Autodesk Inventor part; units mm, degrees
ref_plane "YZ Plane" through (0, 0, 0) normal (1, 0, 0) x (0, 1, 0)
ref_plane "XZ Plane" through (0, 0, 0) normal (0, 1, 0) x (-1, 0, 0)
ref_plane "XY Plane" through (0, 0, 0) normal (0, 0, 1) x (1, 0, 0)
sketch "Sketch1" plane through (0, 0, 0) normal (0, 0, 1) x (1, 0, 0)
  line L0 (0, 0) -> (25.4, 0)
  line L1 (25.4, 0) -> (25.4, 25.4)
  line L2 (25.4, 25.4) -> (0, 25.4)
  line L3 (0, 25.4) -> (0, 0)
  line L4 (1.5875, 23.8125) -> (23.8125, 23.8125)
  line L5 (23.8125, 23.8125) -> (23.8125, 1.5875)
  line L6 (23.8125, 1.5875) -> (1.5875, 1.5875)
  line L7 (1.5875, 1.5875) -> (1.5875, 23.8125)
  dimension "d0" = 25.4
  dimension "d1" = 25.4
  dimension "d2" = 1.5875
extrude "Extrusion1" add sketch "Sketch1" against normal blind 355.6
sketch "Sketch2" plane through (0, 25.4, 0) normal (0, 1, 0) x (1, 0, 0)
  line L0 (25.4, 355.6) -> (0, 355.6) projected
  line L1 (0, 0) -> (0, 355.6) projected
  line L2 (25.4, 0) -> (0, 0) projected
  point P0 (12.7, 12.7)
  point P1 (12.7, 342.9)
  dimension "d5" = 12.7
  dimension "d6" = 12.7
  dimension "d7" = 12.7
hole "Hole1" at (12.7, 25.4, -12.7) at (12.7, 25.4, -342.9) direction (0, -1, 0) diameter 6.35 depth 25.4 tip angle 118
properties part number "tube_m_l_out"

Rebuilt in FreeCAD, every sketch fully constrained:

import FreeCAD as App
import Part
import Sketcher
from FreeCAD import Vector
Q = App.Units.Quantity

doc = App.newDocument("Part")
params = doc.addObject("Spreadsheet::Sheet", "Params")
for row, (alias, value) in enumerate([
    ("sketch1_width", "1 in"),
    ("pad1_length", "14 in"),
    ("sketch2_diameter", "0.25 in"),
    ("hole_diameter", "0.25 in"),
    ("hole_depth", "1 in"),
], start=1):
    params.set(f"A{row}", alias)
    params.set(f"B{row}", "=" + value)
    params.setAlias(f"B{row}", alias)

body = doc.addObject("PartDesign::Body", "Body")

sketch1 = doc.addObject("Sketcher::SketchObject", "Sketch")
body.addObject(sketch1)
sketch1.AttachmentSupport = (doc.XY_Plane, [""])
sketch1.MapMode = "FlatFace"
sketch1.addGeometry(Part.LineSegment(Vector(0, 25, 0), Vector(0, 0, 0)), False)
sketch1.addGeometry(Part.LineSegment(Vector(0, 0, 0), Vector(25, 0, 0)), False)
sketch1.addGeometry(Part.LineSegment(Vector(25, 0, 0), Vector(25, 25, 0)), False)
sketch1.addGeometry(Part.LineSegment(Vector(25, 25, 0), Vector(0, 25, 0)), False)
sketch1.addGeometry(Part.LineSegment(Vector(2, 2, 0), Vector(2, 24, 0)), False)
sketch1.addGeometry(Part.LineSegment(Vector(2, 24, 0), Vector(24, 24, 0)), False)
sketch1.addGeometry(Part.LineSegment(Vector(24, 24, 0), Vector(24, 2, 0)), False)
sketch1.addGeometry(Part.LineSegment(Vector(24, 2, 0), Vector(2, 2, 0)), False)
sketch1.addConstraint(Sketcher.Constraint("Coincident", 0, 2, 1, 1))
sketch1.addConstraint(Sketcher.Constraint("Coincident", 1, 2, 2, 1))
sketch1.addConstraint(Sketcher.Constraint("Coincident", 2, 2, 3, 1))
sketch1.addConstraint(Sketcher.Constraint("Coincident", 3, 2, 0, 1))
sketch1.addConstraint(Sketcher.Constraint("Coincident", 4, 2, 5, 1))
sketch1.addConstraint(Sketcher.Constraint("Coincident", 5, 2, 6, 1))
sketch1.addConstraint(Sketcher.Constraint("Coincident", 6, 2, 7, 1))
sketch1.addConstraint(Sketcher.Constraint("Coincident", 7, 2, 4, 1))
sketch1.addConstraint(Sketcher.Constraint("Vertical", 0))
sketch1.addConstraint(Sketcher.Constraint("Horizontal", 1))
sketch1.addConstraint(Sketcher.Constraint("Vertical", 2))
sketch1.addConstraint(Sketcher.Constraint("Horizontal", 3))
sketch1.addConstraint(Sketcher.Constraint("Vertical", 4))
sketch1.addConstraint(Sketcher.Constraint("Horizontal", 5))
sketch1.addConstraint(Sketcher.Constraint("Vertical", 6))
sketch1.addConstraint(Sketcher.Constraint("Horizontal", 7))
sketch1.addConstraint(Sketcher.Constraint("Coincident", 0, 2, -1, 1))
sketch1.addConstraint(Sketcher.Constraint("Equal", 3, 0))
sketch1.addConstraint(Sketcher.Constraint("Equal", 7, 4))
sketch1.addConstraint(Sketcher.Constraint("DistanceX", 1, 1, 1, 2, Q("1 in")))
sketch1.addConstraint(Sketcher.Constraint("DistanceX", -1, 1, 4, 2, Q("0.0625 in")))
sketch1.addConstraint(Sketcher.Constraint("DistanceY", -1, 1, 6, 2, Q("0.0625 in")))
sketch1.addConstraint(Sketcher.Constraint("DistanceY", 4, 2, 3, 2, Q("0.0625 in")))
sketch1.setExpression("Constraints[19]", "Params.sketch1_width")
pad1 = doc.addObject("PartDesign::Pad", "Pad")
body.addObject(pad1)
pad1.Profile = sketch1
pad1.setExpression("Length", "Params.pad1_length")
pad1.Reversed = True

sketch2 = doc.addObject("Sketcher::SketchObject", "Sketch001")
body.addObject(sketch2)
sketch2.AttachmentSupport = (doc.XZ_Plane, [""])
sketch2.MapMode = "FlatFace"
sketch2.AttachmentOffset = App.Placement(Vector(0, 0, -1 * 25.4), App.Rotation())
sketch2.addGeometry(Part.Circle(Vector(12.7, -12.7, 0), Vector(0, 0, 1), 3.2), False)
sketch2.addGeometry(Part.Circle(Vector(12.7, -342.9, 0), Vector(0, 0, 1), 3.2), False)
sketch2.addConstraint(Sketcher.Constraint("Equal", 0, 1))
sketch2.addConstraint(Sketcher.Constraint("Vertical", 0, 3, 1, 3))
sketch2.addConstraint(Sketcher.Constraint("Diameter", 0, Q("0.25 in")))
sketch2.addConstraint(Sketcher.Constraint("DistanceY", 1, 3, 0, 3, Q("13 in")))
sketch2.addConstraint(Sketcher.Constraint("DistanceX", -1, 1, 0, 3, Q("0.5 in")))
sketch2.addConstraint(Sketcher.Constraint("DistanceY", 0, 3, -1, 1, Q("0.5 in")))
sketch2.setExpression("Constraints[2]", "Params.sketch2_diameter")
doc.recompute()
hole = doc.addObject("PartDesign::Hole", "Hole")
body.addObject(hole)
hole.Profile = sketch2
hole.ThreadType = "None"
hole.setExpression("Diameter", "Params.hole_diameter")
hole.DepthType = "Dimension"
hole.setExpression("Depth", "Params.hole_depth")
hole.DrillPoint = "Angled"
hole.DrillPointAngle = 118
hole.Reversed = True

doc.recompute()
